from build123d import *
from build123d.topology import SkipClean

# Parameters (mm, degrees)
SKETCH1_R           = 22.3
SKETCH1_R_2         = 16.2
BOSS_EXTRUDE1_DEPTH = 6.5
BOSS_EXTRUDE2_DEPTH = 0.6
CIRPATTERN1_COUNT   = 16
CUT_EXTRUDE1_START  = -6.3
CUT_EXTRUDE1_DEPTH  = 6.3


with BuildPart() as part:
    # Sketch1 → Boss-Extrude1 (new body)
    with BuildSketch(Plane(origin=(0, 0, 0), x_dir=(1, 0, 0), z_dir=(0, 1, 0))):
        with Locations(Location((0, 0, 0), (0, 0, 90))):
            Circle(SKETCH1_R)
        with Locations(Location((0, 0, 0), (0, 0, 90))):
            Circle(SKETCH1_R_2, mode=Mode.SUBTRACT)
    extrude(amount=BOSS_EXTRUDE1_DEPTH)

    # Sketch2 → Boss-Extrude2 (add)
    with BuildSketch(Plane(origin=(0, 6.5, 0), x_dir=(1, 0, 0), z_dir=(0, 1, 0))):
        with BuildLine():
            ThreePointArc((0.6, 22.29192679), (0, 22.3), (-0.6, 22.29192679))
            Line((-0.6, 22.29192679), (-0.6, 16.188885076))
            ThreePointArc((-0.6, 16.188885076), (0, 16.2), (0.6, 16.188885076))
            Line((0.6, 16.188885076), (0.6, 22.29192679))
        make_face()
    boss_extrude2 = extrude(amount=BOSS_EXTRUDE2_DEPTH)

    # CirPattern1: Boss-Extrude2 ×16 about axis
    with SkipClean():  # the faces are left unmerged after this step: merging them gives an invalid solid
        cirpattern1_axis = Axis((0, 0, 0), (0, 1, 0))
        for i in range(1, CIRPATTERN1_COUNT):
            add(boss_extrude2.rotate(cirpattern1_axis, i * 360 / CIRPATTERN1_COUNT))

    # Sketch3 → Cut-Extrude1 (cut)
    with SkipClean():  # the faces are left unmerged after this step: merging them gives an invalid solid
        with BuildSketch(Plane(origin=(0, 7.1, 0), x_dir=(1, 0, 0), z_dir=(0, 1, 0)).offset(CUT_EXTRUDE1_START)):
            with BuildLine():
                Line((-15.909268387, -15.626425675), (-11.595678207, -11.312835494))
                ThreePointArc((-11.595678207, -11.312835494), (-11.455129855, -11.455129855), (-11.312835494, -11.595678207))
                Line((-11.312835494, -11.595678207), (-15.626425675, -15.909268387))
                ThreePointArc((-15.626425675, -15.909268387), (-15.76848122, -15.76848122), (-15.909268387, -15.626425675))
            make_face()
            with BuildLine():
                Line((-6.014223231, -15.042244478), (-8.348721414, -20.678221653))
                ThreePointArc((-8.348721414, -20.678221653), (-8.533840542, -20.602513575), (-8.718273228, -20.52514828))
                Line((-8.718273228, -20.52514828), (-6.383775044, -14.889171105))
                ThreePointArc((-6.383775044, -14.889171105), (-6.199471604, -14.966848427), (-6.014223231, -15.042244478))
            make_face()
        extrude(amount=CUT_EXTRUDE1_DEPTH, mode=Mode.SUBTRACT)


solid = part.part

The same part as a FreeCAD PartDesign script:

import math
import FreeCAD as App
import Part
import Sketcher
from FreeCAD import Vector
Q = App.Units.Quantity

doc = App.newDocument("Part")
params = doc.addObject("Spreadsheet::Sheet", "Params")
for row, (alias, value) in enumerate([
    ("sketch1_diameter", "44.6 mm"),
    ("sketch1_diameter2", "32.4 mm"),
    ("pad1_length", "6.5 mm"),
    ("sketch2_radius", "22.300001 mm"),
    ("sketch2_radius2", "16.2 mm"),
    ("pad2_length", "0.6 mm"),
    ("sketch3_radius", "16.200002 mm"),
    ("sketch3_radius2", "16.200001 mm"),
    ("pocket1_length", "6.3 mm"),
], start=1):
    params.set(f"A{row}", alias)
    params.set(f"B{row}", "=" + value)
    params.setAlias(f"B{row}", alias)

body = doc.addObject("PartDesign::Body", "Body")

# Sketch on XZ plane
sketch1 = body.newObject("Sketcher::SketchObject", "Sketch")
sketch1.AttachmentSupport = (doc.getObject("XZ_Plane"), [""])
sketch1.MapMode = "FlatFace"
sketch1.addGeometry([
    Part.Circle(Vector(0, 0, 0), Vector(0, 0, 1), 22),
    Part.Circle(Vector(0, 0, 0), Vector(0, 0, 1), 16),
], False)
sketch1.addConstraint([
    Sketcher.Constraint("Coincident", 0, 3, -1, 1),
    Sketcher.Constraint("Coincident", 1, 3, -1, 1),
    Sketcher.Constraint("Diameter", 0, Q("44.6 mm")),
    Sketcher.Constraint("Diameter", 1, Q("32.4 mm")),
])
sketch1.setExpression("Constraints[2]", "Params.sketch1_diameter")
sketch1.setExpression("Constraints[3]", "Params.sketch1_diameter2")
pad1 = body.newObject("PartDesign::Pad", "Pad")
pad1.Profile = sketch1
pad1.setExpression("Length", "Params.pad1_length")
pad1.Reversed = True

# Sketch on XZ plane
sketch2 = body.newObject("Sketcher::SketchObject", "Sketch001")
sketch2.AttachmentSupport = (doc.getObject("XZ_Plane"), [""])
sketch2.MapMode = "FlatFace"
sketch2.AttachmentOffset = App.Placement(Vector(0, 0, -6.5), App.Rotation())
sketch2.addGeometry([
    Part.ArcOfCircle(Part.Circle(Vector(0, 0, 0), Vector(0, 0, 1), 22.3), math.radians(-91.54), math.radians(-88.46)),
    Part.LineSegment(Vector(-0.6, -22.3, 0), Vector(-0.6, -16.2, 0)),
    Part.ArcOfCircle(Part.Circle(Vector(0, 0, 0), Vector(0, 0, 1), 16.2), math.radians(-92.12), math.radians(-87.88)),
    Part.LineSegment(Vector(0.6, -16.2, 0), Vector(0.6, -22.3, 0)),
], False)
sketch2.addConstraint([
    Sketcher.Constraint("Coincident", 0, 1, 1, 1),
    Sketcher.Constraint("Coincident", 1, 2, 2, 1),
    Sketcher.Constraint("Coincident", 2, 2, 3, 1),
    Sketcher.Constraint("Coincident", 3, 2, 0, 2),
    Sketcher.Constraint("Vertical", 1),
    Sketcher.Constraint("Vertical", 3),
    Sketcher.Constraint("Coincident", 0, 3, -1, 1),
    Sketcher.Constraint("Coincident", 2, 3, -1, 1),
    Sketcher.Constraint("Horizontal", 1, 2, 2, 2),
    Sketcher.Constraint("Radius", 0, Q("22.300001 mm")),
    Sketcher.Constraint("Radius", 2, Q("16.2 mm")),
    Sketcher.Constraint("DistanceX", 0, 1, -1, 1, Q("0.6 mm")),
])
sketch2.setExpression("Constraints[9]", "Params.sketch2_radius")
sketch2.setExpression("Constraints[10]", "Params.sketch2_radius2")
pad2 = body.newObject("PartDesign::Pad", "Pad001")
pad2.Profile = sketch2
pad2.setExpression("Length", "Params.pad2_length")
pad2.Reversed = True
doc.recompute()

polarpattern = body.newObject("PartDesign::PolarPattern", "PolarPattern")
polarpattern.Originals = [pad2]
polarpattern.Axis = (doc.getObject("Y_Axis"), [""])
polarpattern.Angle = 360
polarpattern.Occurrences = 16
body.Tip = polarpattern

# Sketch on XZ plane
sketch3 = body.newObject("Sketcher::SketchObject", "Sketch002")
sketch3.AttachmentSupport = (doc.getObject("XZ_Plane"), [""])
sketch3.MapMode = "FlatFace"
sketch3.AttachmentOffset = App.Placement(Vector(0, 0, -0.8), App.Rotation())
sketch3.addGeometry([
    Part.LineSegment(Vector(-11.595678, 11.312835, 0), Vector(-15.909268, 15.626426, 0)),  # 0
    Part.ArcOfCircle(Part.Circle(Vector(0.000006, -0.000006, 0), Vector(0, 0, 1), 22.300008), math.radians(134.48613), math.radians(135.51387)),  # 1
    Part.LineSegment(Vector(-15.626426, 15.909268, 0), Vector(-11.312835, 11.595678, 0)),  # 2
    Part.ArcOfCircle(Part.Circle(Vector(0.000001, -0.000001, 0), Vector(0, 0, 1), 16.200002), math.radians(134.292627), math.radians(135.707373)),  # 3
    Part.LineSegment(Vector(-8.348721, 20.678222, 0), Vector(-6.014223, 15.042244, 0)),  # 4
    Part.ArcOfCircle(Part.Circle(Vector(0, -0.000001, 0), Vector(0, 0, 1), 16.200001), math.radians(111.792627), math.radians(113.207373)),  # 5
    Part.LineSegment(Vector(-6.383775, 14.889171, 0), Vector(-8.718273, 20.525148, 0)),  # 6
    Part.ArcOfCircle(Part.Circle(Vector(-0.000004, 0.000009, 0), Vector(0, 0, 1), 22.29999), math.radians(111.986129), math.radians(113.013871)),  # 7
], False)
sketch3.addConstraint([
    Sketcher.Constraint("Coincident", 0, 2, 1, 2),
    Sketcher.Constraint("Coincident", 1, 1, 2, 1),
    Sketcher.Constraint("Coincident", 2, 2, 3, 1),
    Sketcher.Constraint("Coincident", 3, 2, 0, 1),
    Sketcher.Constraint("Coincident", 4, 2, 5, 1),
    Sketcher.Constraint("Coincident", 5, 2, 6, 1),
    Sketcher.Constraint("Coincident", 6, 2, 7, 2),
    Sketcher.Constraint("Coincident", 7, 1, 4, 1),
    Sketcher.Constraint("Coincident", 1, 3, -1, 1),
    Sketcher.Constraint("Coincident", 3, 3, -1, 1),
    Sketcher.Constraint("Coincident", 5, 3, -1, 1),
    Sketcher.Constraint("Coincident", 7, 3, -1, 1),
    Sketcher.Constraint("Radius", 3, Q("16.200002 mm")),
    Sketcher.Constraint("Radius", 5, Q("16.200001 mm")),
    Sketcher.Constraint("Radius", 1, Q("22.300008 mm")),
    Sketcher.Constraint("Radius", 7, Q("22.29999 mm")),
    Sketcher.Constraint("DistanceX", 6, 2, 5, 2, Q("2.334498 mm")),
    Sketcher.Constraint("DistanceX", 7, 1, 4, 2, Q("2.334498 mm")),
    Sketcher.Constraint("DistanceX", 0, 2, -1, 1, Q("15.909268 mm")),
    Sketcher.Constraint("DistanceY", -1, 1, 1, 1, Q("15.909268 mm")),
    Sketcher.Constraint("DistanceY", -1, 1, 2, 2, Q("11.595678 mm")),
    Sketcher.Constraint("DistanceX", 3, 2, -1, 1, Q("11.595678 mm")),
    Sketcher.Constraint("DistanceY", -1, 1, 5, 2, Q("14.889171 mm")),
    Sketcher.Constraint("DistanceX", 7, 1, -1, 1, Q("8.348721 mm")),
])
sketch3.setExpression("Constraints[12]", "Params.sketch3_radius")
sketch3.setExpression("Constraints[13]", "Params.sketch3_radius2")
pocket1 = body.newObject("PartDesign::Pocket", "Pocket")
pocket1.Profile = sketch3
pocket1.setExpression("Length", "Params.pocket1_length")

doc.recompute()
